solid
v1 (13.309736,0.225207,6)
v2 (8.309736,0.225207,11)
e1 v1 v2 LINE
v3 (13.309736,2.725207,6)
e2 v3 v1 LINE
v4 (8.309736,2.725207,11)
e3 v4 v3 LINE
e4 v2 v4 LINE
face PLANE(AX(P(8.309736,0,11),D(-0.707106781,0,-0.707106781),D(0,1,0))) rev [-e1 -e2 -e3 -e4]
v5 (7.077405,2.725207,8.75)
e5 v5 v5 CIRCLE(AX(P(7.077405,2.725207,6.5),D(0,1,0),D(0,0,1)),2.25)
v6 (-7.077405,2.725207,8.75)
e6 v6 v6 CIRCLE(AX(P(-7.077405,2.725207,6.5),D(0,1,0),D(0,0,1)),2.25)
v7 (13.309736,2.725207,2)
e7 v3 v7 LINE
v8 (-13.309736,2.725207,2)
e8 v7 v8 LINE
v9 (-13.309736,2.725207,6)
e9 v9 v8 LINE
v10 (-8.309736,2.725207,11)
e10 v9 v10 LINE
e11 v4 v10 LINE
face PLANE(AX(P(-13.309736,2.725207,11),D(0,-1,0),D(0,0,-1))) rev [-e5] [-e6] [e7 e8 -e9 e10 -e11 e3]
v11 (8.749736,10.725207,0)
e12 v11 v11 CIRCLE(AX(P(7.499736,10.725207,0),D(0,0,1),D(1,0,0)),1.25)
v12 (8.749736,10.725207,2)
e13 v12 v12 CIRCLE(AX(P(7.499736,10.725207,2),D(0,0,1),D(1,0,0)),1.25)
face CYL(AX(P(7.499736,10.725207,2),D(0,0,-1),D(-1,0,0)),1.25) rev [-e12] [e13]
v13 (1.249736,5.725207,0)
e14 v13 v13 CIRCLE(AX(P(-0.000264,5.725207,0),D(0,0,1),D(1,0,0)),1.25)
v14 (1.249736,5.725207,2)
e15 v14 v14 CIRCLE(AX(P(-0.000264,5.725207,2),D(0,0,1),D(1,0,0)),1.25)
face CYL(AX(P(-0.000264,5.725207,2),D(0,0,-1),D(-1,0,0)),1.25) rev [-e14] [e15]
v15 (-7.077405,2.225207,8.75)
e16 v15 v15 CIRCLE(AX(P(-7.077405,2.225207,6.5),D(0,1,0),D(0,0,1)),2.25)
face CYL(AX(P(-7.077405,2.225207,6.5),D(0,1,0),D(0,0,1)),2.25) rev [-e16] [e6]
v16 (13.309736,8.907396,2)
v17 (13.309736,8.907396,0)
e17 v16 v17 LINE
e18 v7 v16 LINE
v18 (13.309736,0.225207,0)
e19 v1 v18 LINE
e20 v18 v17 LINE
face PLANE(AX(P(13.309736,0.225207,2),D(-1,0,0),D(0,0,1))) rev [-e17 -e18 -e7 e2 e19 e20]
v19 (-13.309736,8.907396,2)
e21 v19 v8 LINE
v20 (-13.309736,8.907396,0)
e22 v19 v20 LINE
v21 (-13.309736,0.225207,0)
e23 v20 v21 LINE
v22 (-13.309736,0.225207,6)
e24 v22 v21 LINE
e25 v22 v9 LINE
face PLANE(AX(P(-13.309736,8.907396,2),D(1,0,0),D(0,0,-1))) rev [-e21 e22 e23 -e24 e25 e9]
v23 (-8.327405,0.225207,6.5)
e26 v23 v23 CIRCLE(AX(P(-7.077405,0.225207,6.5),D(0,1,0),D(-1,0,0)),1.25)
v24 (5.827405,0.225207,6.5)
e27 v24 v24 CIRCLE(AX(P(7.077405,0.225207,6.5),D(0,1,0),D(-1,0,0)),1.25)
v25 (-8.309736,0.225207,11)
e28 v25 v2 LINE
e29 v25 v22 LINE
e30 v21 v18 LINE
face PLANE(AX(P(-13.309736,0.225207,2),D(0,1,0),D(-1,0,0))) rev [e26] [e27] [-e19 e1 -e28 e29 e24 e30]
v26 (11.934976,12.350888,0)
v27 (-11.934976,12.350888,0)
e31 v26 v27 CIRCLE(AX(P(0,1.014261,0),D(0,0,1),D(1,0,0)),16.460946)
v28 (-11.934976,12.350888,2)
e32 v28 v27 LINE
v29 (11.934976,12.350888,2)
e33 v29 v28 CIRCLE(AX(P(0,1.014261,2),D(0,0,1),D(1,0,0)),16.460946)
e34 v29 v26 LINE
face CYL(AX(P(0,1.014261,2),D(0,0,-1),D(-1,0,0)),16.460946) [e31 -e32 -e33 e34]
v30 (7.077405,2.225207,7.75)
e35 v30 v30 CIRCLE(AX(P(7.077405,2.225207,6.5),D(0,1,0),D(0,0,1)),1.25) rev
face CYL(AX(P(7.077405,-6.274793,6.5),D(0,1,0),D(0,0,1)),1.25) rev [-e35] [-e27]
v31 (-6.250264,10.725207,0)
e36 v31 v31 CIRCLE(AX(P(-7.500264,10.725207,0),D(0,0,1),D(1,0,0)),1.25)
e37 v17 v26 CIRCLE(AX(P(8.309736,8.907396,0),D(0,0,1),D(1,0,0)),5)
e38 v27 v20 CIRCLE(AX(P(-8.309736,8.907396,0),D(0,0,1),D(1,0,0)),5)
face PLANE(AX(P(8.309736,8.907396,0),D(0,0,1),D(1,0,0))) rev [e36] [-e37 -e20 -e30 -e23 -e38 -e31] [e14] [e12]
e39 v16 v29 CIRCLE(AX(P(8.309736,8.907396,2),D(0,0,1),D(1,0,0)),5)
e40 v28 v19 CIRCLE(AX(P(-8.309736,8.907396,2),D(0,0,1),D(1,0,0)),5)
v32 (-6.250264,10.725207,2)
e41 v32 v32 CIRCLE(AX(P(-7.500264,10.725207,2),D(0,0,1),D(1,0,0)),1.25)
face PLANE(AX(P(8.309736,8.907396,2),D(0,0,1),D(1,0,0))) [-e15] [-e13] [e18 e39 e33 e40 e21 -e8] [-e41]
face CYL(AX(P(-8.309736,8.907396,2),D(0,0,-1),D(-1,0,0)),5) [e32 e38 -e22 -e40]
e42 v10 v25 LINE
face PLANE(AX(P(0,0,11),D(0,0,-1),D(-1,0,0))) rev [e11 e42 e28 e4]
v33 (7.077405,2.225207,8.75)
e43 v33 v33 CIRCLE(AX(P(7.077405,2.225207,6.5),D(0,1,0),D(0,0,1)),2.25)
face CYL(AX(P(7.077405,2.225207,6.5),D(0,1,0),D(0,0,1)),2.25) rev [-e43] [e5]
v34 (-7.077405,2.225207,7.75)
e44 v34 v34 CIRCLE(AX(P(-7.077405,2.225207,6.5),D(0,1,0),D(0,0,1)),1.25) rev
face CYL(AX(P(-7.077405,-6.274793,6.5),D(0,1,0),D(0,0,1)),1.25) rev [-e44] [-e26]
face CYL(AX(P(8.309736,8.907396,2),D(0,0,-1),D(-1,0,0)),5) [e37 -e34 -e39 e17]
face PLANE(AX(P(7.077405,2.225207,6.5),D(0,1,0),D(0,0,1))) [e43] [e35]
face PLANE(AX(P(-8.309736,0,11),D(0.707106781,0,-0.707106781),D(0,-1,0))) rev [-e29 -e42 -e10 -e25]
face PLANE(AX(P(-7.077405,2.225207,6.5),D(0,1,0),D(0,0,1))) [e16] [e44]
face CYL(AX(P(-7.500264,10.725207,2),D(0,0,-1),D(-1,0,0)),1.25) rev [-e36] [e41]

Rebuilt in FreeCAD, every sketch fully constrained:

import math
import FreeCAD as App
import Part
import Sketcher
Q = App.Units.Quantity


def edges_at(feature, points):
    """Names of the edges that pass closest to the given points."""
    edges = feature.Shape.Edges
    near = lambda p: min(range(len(edges)), key=lambda i: edges[i].distToShape(Part.Vertex(*p))[0])
    return sorted({f"Edge{near(p) + 1}" for p in points})


def add_polygon(sketch, points):
    """Adds a closed chain of lines whose ends are joined by coincident constraints."""
    first, n = sketch.GeometryCount, len(points)
    for a, b in zip(points, points[1:] + points[:1]):
        sketch.addGeometry(Part.LineSegment(App.Vector(*a, 0), App.Vector(*b, 0)), False)
    for i in range(n):
        sketch.addConstraint(Sketcher.Constraint("Coincident", first + i, 2, first + (i + 1) % n, 1))

doc = App.newDocument("Part")
params = doc.addObject("Spreadsheet::Sheet", "Params")
for row, (alias, value) in enumerate([
    ("sketch1_radius", "5 mm"),
    ("sketch1_diameter", "2.5 mm"),
    ("pad1_length", "2 mm"),
    ("sketch2_height", "2.5 mm"),
    ("pad2_length", "9 mm"),
    ("sketch3_diameter", "2.5 mm"),
    ("pocket1_length", "9 mm"),
    ("sketch4_diameter", "4.5 mm"),
    ("pocket2_length", "0.5 mm"),
    ("chamfer_size", "5 mm"),
], start=1):
    params.set(f"A{row}", alias)
    params.set(f"B{row}", "=" + value)
    params.setAlias(f"B{row}", alias)

body = doc.addObject("PartDesign::Body", "Body")

# Sketch on XY plane
sketch1 = doc.addObject("Sketcher::SketchObject", "Sketch")
body.addObject(sketch1)
sketch1.AttachmentSupport = (doc.XY_Plane, [""])
sketch1.MapMode = "FlatFace"
sketch1.addGeometry([
    Part.LineSegment(App.Vector(-13.3, 0.2, 0), App.Vector(13.3, 0.2, 0)),  # 0
    Part.LineSegment(App.Vector(13.3, 0.2, 0), App.Vector(13.3, 8.9, 0)),  # 1
    Part.ArcOfCircle(Part.Circle(App.Vector(8.3, 8.9, 0), App.Vector(0, 0, 1), 5), math.radians(0), math.radians(44)),  # 2
    Part.ArcOfCircle(Part.Circle(App.Vector(0, 1, 0), App.Vector(0, 0, 1), 16.5), math.radians(44), math.radians(136)),  # 3
    Part.ArcOfCircle(Part.Circle(App.Vector(-8.3, 8.9, 0), App.Vector(0, 0, 1), 5), math.radians(136), math.radians(180)),  # 4
    Part.LineSegment(App.Vector(-13.3, 8.9, 0), App.Vector(-13.3, 0.2, 0)),  # 5
    Part.Circle(App.Vector(0, 5.7, 0), App.Vector(0, 0, 1), 1.2),  # 6
    Part.Circle(App.Vector(-7.5, 10.7, 0), App.Vector(0, 0, 1), 1.2),  # 7
    Part.Circle(App.Vector(7.5, 10.7, 0), App.Vector(0, 0, 1), 1.2),  # 8
], False)
sketch1.addConstraint([
    Sketcher.Constraint("Coincident", 0, 2, 1, 1),
    Sketcher.Constraint("Tangent", 1, 2, 2, 1),
    Sketcher.Constraint("Tangent", 2, 2, 3, 1),
    Sketcher.Constraint("Tangent", 3, 2, 4, 1),
    Sketcher.Constraint("Tangent", 4, 2, 5, 1),
    Sketcher.Constraint("Coincident", 5, 2, 0, 1),
    Sketcher.Constraint("Horizontal", 0),
    Sketcher.Constraint("Vertical", 1),
    Sketcher.Constraint("Vertical", 5),
    Sketcher.Constraint("Equal", 2, 4),
    Sketcher.Constraint("Equal", 6, 7),
    Sketcher.Constraint("Equal", 7, 8),
    Sketcher.Constraint("Symmetric", 2, 3, 4, 3, -2),
    Sketcher.Constraint("Horizontal", 7, 3, 8, 3),
    Sketcher.Constraint("Radius", 2, Q("5 mm")),
    Sketcher.Constraint("Diameter", 6, Q("2.5 mm")),
    Sketcher.Constraint("DistanceY", 6, 3, 7, 3, Q("5 mm")),
    Sketcher.Constraint("DistanceX", 7, 3, 8, 3, Q("15 mm")),
    Sketcher.Constraint("DistanceX", 7, 3, 6, 3, Q("7.5 mm")),
    Sketcher.Constraint("DistanceY", 0, 2, 8, 3, Q("10.5 mm")),
    Sketcher.Constraint("DistanceX", 6, 3, 2, 3, Q("8.31 mm")),
    Sketcher.Constraint("Radius", 3, Q("16.460946 mm")),
    Sketcher.Constraint("DistanceX", 0, 1, 0, 2, Q("26.619472 mm")),
    Sketcher.Constraint("DistanceY", 1, 1, 1, 2, Q("8.682189 mm")),
    Sketcher.Constraint("DistanceY", -1, 1, 3, 3, Q("1.014261 mm")),
])
sketch1.setExpression("Constraints[14]", "Params.sketch1_radius")
sketch1.setExpression("Constraints[15]", "Params.sketch1_diameter")
pad1 = doc.addObject("PartDesign::Pad", "Pad")
body.addObject(pad1)
pad1.Profile = sketch1
pad1.setExpression("Length", "Params.pad1_length")

# Sketch on XY plane
sketch2 = doc.addObject("Sketcher::SketchObject", "Sketch001")
body.addObject(sketch2)
sketch2.AttachmentSupport = (doc.XY_Plane, [""])
sketch2.MapMode = "FlatFace"
sketch2.AttachmentOffset = App.Placement(App.Vector(0, 0, 2), App.Rotation())
add_polygon(sketch2, [(-13.3, 2.7), (-13.3, 0.2), (13.3, 0.2), (13.3, 2.7)])  # lines 0-3
sketch2.addConstraint([
    Sketcher.Constraint("Vertical", 0),
    Sketcher.Constraint("Horizontal", 1),
    Sketcher.Constraint("Vertical", 2),
    Sketcher.Constraint("Horizontal", 3),
    Sketcher.Constraint("DistanceY", 0, 2, 0, 1, Q("2.5 mm")),
    Sketcher.Constraint("DistanceX", 1, 1, 1, 2, Q("26.619472 mm")),
    Sketcher.Constraint("DistanceX", 0, 2, -1, 1, Q("13.309736 mm")),
    Sketcher.Constraint("DistanceY", -1, 1, 0, 2, Q("0.225207 mm")),
])
sketch2.setExpression("Constraints[8]", "Params.sketch2_height")
pad2 = doc.addObject("PartDesign::Pad", "Pad001")
body.addObject(pad2)
pad2.Profile = sketch2
pad2.setExpression("Length", "Params.pad2_length")

# Sketch on XZ plane
sketch3 = doc.addObject("Sketcher::SketchObject", "Sketch002")
body.addObject(sketch3)
sketch3.AttachmentSupport = (doc.XZ_Plane, [""])
sketch3.MapMode = "FlatFace"
sketch3.AttachmentOffset = App.Placement(App.Vector(0, 0, -2.725207), App.Rotation())
sketch3.addGeometry([
    Part.Circle(App.Vector(-7.1, 6.5, 0), App.Vector(0, 0, 1), 1.2),
    Part.Circle(App.Vector(7.1, 6.5, 0), App.Vector(0, 0, 1), 1.2),
], False)
sketch3.addConstraint([
    Sketcher.Constraint("Equal", 0, 1),
    Sketcher.Constraint("Symmetric", 0, 3, 1, 3, -2),
    Sketcher.Constraint("Diameter", 0, Q("2.5 mm")),
    Sketcher.Constraint("DistanceY", -1, 1, 0, 3, Q("6.5 mm")),
    Sketcher.Constraint("DistanceX", 0, 3, 1, 3, Q("14.15481 mm")),
])
sketch3.setExpression("Constraints[2]", "Params.sketch3_diameter")
pocket1 = doc.addObject("PartDesign::Pocket", "Pocket")
body.addObject(pocket1)
pocket1.Profile = sketch3
pocket1.setExpression("Length", "Params.pocket1_length")
pocket1.Reversed = True

# Sketch on XZ plane
sketch4 = doc.addObject("Sketcher::SketchObject", "Sketch003")
body.addObject(sketch4)
sketch4.AttachmentSupport = (doc.XZ_Plane, [""])
sketch4.MapMode = "FlatFace"
sketch4.AttachmentOffset = App.Placement(App.Vector(0, 0, -2.725207), App.Rotation())
sketch4.addGeometry([
    Part.Circle(App.Vector(-7.1, 6.5, 0), App.Vector(0, 0, 1), 2.2),
    Part.Circle(App.Vector(7.1, 6.5, 0), App.Vector(0, 0, 1), 2.2),
], False)
sketch4.addConstraint([
    Sketcher.Constraint("Equal", 0, 1),
    Sketcher.Constraint("Symmetric", 0, 3, 1, 3, -2),
    Sketcher.Constraint("Diameter", 0, Q("4.5 mm")),
    Sketcher.Constraint("DistanceY", -1, 1, 0, 3, Q("6.5 mm")),
    Sketcher.Constraint("DistanceX", 0, 3, 1, 3, Q("14.15481 mm")),
])
sketch4.setExpression("Constraints[2]", "Params.sketch4_diameter")
pocket2 = doc.addObject("PartDesign::Pocket", "Pocket001")
body.addObject(pocket2)
pocket2.Profile = sketch4
pocket2.setExpression("Length", "Params.pocket2_length")
pocket2.Reversed = True
doc.recompute()

chamfer = doc.addObject("PartDesign::Chamfer", "Chamfer")
body.addObject(chamfer)
chamfer.Base = (pocket2, edges_at(pocket2, [(13.31, 1.475, 11), (-13.31, 1.475, 11)]))
chamfer.setExpression("Size", "Params.chamfer_size")

doc.recompute()
